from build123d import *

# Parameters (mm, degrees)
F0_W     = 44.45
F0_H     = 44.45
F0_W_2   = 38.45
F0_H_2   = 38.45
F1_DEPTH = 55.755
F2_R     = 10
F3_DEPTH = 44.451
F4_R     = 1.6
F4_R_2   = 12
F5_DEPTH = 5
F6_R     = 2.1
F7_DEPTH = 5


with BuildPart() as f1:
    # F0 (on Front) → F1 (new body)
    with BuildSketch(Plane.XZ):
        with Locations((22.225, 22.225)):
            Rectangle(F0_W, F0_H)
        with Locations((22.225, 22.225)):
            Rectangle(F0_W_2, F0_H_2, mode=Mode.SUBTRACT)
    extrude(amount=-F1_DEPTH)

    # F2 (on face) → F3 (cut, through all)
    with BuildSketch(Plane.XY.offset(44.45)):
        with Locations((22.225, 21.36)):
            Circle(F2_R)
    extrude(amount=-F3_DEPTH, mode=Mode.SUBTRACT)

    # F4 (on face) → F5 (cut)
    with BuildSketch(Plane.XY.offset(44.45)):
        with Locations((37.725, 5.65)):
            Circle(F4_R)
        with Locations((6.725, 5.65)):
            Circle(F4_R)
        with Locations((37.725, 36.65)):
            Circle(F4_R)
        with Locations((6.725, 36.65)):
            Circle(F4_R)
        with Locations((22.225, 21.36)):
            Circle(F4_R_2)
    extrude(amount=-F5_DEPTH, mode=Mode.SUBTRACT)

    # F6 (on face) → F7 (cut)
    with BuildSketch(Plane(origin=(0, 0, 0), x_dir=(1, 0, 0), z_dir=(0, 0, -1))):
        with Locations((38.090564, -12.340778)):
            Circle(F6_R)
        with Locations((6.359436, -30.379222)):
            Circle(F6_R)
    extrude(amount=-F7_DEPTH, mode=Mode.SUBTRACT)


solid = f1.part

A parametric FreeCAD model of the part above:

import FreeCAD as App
import Part
import Sketcher
from FreeCAD import Vector

doc = App.newDocument("Part")
body = doc.addObject("PartDesign::Body", "Body")

sketch1 = doc.addObject("Sketcher::SketchObject", "Sketch")
body.addObject(sketch1)
sketch1.AttachmentSupport = (doc.XZ_Plane, [""])
sketch1.MapMode = "FlatFace"
sketch1.addGeometry([
    Part.LineSegment(Vector(0, 44, 0), Vector(0, 0, 0)),
    Part.LineSegment(Vector(0, 0, 0), Vector(44, 0, 0)),
    Part.LineSegment(Vector(44, 0, 0), Vector(44, 44, 0)),
    Part.LineSegment(Vector(44, 44, 0), Vector(0, 44, 0)),
    Part.LineSegment(Vector(41, 3, 0), Vector(3, 3, 0)),
    Part.LineSegment(Vector(3, 3, 0), Vector(3, 41, 0)),
    Part.LineSegment(Vector(3, 41, 0), Vector(41, 41, 0)),
    Part.LineSegment(Vector(41, 41, 0), Vector(41, 3, 0)),
], False)
sketch1.addConstraint([
    Sketcher.Constraint("Coincident", 0, 2, 1, 1),
    Sketcher.Constraint("Coincident", 1, 2, 2, 1),
    Sketcher.Constraint("Coincident", 2, 2, 3, 1),
    Sketcher.Constraint("Coincident", 3, 2, 0, 1),
    Sketcher.Constraint("Coincident", 4, 2, 5, 1),
    Sketcher.Constraint("Coincident", 5, 2, 6, 1),
    Sketcher.Constraint("Coincident", 6, 2, 7, 1),
    Sketcher.Constraint("Coincident", 7, 2, 4, 1),
    Sketcher.Constraint("Vertical", 0),
    Sketcher.Constraint("Horizontal", 1),
    Sketcher.Constraint("Vertical", 2),
    Sketcher.Constraint("Horizontal", 3),
    Sketcher.Constraint("Horizontal", 4),
    Sketcher.Constraint("Vertical", 5),
    Sketcher.Constraint("Horizontal", 6),
    Sketcher.Constraint("Vertical", 7),
    Sketcher.Constraint("Coincident", 0, 2, -1, 1),
    Sketcher.Constraint("Equal", 3, 0),
    Sketcher.Constraint("Equal", 6, 5),
    Sketcher.Constraint("DistanceX", -1, 1, 4, 2, 3.0),
    Sketcher.Constraint("DistanceY", -1, 1, 4, 2, 3.0),
    Sketcher.Constraint("DistanceY", 5, 2, 3, 2, 3.0),
    Sketcher.Constraint("DistanceX", 1, 1, 1, 2, 44.45),
])
pad1 = doc.addObject("PartDesign::Pad", "Pad")
body.addObject(pad1)
pad1.Profile = sketch1
pad1.Length = 55.755
pad1.Reversed = True

sketch2 = doc.addObject("Sketcher::SketchObject", "Sketch001")
body.addObject(sketch2)
sketch2.AttachmentSupport = (doc.XY_Plane, [""])
sketch2.MapMode = "FlatFace"
sketch2.AttachmentOffset = App.Placement(Vector(0, 0, 44.45), App.Rotation())
sketch2.addGeometry(Part.Circle(Vector(22, 21, 0), Vector(0, 0, 1), 10), False)
sketch2.addConstraint([
    Sketcher.Constraint("Diameter", 0, 20.0),
    Sketcher.Constraint("DistanceY", -1, 1, 0, 3, 21.36),
    Sketcher.Constraint("DistanceX", -1, 1, 0, 3, 22.225),
])
pocket1 = doc.addObject("PartDesign::Pocket", "Pocket")
body.addObject(pocket1)
pocket1.Profile = sketch2
pocket1.Type = "ThroughAll"

sketch3 = doc.addObject("Sketcher::SketchObject", "Sketch002")
body.addObject(sketch3)
sketch3.AttachmentSupport = (doc.XY_Plane, [""])
sketch3.MapMode = "FlatFace"
sketch3.AttachmentOffset = App.Placement(Vector(0, 0, 44.45), App.Rotation())
sketch3.addGeometry([
    Part.Circle(Vector(37.7, 5.7, 0), Vector(0, 0, 1), 1.6),
    Part.Circle(Vector(6.7, 5.7, 0), Vector(0, 0, 1), 1.6),
    Part.Circle(Vector(37.7, 36.6, 0), Vector(0, 0, 1), 1.6),
    Part.Circle(Vector(6.7, 36.6, 0), Vector(0, 0, 1), 1.6),
    Part.Circle(Vector(22.2, 21.4, 0), Vector(0, 0, 1), 12),
], False)
sketch3.addConstraint([
    Sketcher.Constraint("Equal", 0, 1),
    Sketcher.Constraint("Equal", 1, 2),
    Sketcher.Constraint("Equal", 2, 3),
    Sketcher.Constraint("Horizontal", 0, 3, 1, 3),
    Sketcher.Constraint("Horizontal", 2, 3, 3, 3),
    Sketcher.Constraint("Vertical", 0, 3, 2, 3),
    Sketcher.Constraint("Vertical", 1, 3, 3, 3),
    Sketcher.Constraint("Diameter", 4, 24.0),
    Sketcher.Constraint("Diameter", 0, 3.2),
    Sketcher.Constraint("DistanceX", 1, 3, 0, 3, 31.0),
    Sketcher.Constraint("DistanceY", 0, 3, 2, 3, 31.0),
    Sketcher.Constraint("DistanceX", 4, 3, 2, 3, 15.5),
    Sketcher.Constraint("DistanceY", -1, 1, 0, 3, 5.65),
    Sketcher.Constraint("DistanceY", -1, 1, 4, 3, 21.36),
    Sketcher.Constraint("DistanceX", -1, 1, 0, 3, 37.725),
])
pocket2 = doc.addObject("PartDesign::Pocket", "Pocket001")
body.addObject(pocket2)
pocket2.Profile = sketch3
pocket2.Length = 5

sketch4 = doc.addObject("Sketcher::SketchObject", "Sketch003")
body.addObject(sketch4)
sketch4.AttachmentSupport = (doc.XY_Plane, [""])
sketch4.MapMode = "FlatFace"
sketch4.addGeometry([
    Part.Circle(Vector(38.1, 12.3, 0), Vector(0, 0, 1), 2.1),
    Part.Circle(Vector(6.4, 30.4, 0), Vector(0, 0, 1), 2.1),
], False)
sketch4.addConstraint([
    Sketcher.Constraint("Equal", 0, 1),
    Sketcher.Constraint("Diameter", 0, 4.2),
    Sketcher.Constraint("DistanceY", -1, 1, 1, 3, 30.379222),
    Sketcher.Constraint("DistanceX", 1, 3, 0, 3, 31.731128),
    Sketcher.Constraint("DistanceX", -1, 1, 0, 3, 38.090564),
    Sketcher.Constraint("DistanceY", -1, 1, 0, 3, 12.340778),
])
pocket3 = doc.addObject("PartDesign::Pocket", "Pocket002")
body.addObject(pocket3)
pocket3.Profile = sketch4
pocket3.Length = 5
pocket3.Reversed = True

doc.recompute()
